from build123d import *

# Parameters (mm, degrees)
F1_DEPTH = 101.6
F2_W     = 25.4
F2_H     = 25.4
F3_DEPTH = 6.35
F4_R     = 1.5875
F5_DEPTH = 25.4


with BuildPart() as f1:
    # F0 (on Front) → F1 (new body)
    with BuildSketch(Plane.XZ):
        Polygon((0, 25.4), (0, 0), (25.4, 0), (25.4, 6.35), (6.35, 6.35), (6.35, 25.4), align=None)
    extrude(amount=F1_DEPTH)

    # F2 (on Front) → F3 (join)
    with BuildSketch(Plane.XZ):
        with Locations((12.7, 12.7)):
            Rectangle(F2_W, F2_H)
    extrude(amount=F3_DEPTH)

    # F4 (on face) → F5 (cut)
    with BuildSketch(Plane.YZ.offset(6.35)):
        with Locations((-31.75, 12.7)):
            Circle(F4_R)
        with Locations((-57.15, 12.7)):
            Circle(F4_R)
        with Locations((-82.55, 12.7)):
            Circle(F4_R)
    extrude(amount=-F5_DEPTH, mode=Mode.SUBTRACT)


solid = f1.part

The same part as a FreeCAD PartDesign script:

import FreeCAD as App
import Part
import Sketcher
Q = App.Units.Quantity


def add_polygon(sketch, points):
    """Adds a closed chain of lines whose ends are joined by coincident constraints."""
    first, n = sketch.GeometryCount, len(points)
    for a, b in zip(points, points[1:] + points[:1]):
        sketch.addGeometry(Part.LineSegment(App.Vector(*a, 0), App.Vector(*b, 0)), False)
    for i in range(n):
        sketch.addConstraint(Sketcher.Constraint("Coincident", first + i, 2, first + (i + 1) % n, 1))

doc = App.newDocument("Part")
body = doc.addObject("PartDesign::Body", "Body")

# Sketch on XZ plane
sketch1 = body.newObject("Sketcher::SketchObject", "Sketch")
sketch1.AttachmentSupport = (doc.getObject("XZ_Plane"), [""])
sketch1.MapMode = "FlatFace"
add_polygon(sketch1, [(0, 25.4), (0, 0), (25.4, 0), (25.4, 6.35), (6.35, 6.35), (6.35, 25.4)])  # lines 0-5
sketch1.addConstraint([
    Sketcher.Constraint("Vertical", 0),
    Sketcher.Constraint("Horizontal", 1),
    Sketcher.Constraint("Vertical", 2),
    Sketcher.Constraint("Horizontal", 3),
    Sketcher.Constraint("Vertical", 4),
    Sketcher.Constraint("Horizontal", 5),
    Sketcher.Constraint("Coincident", 0, 2, -1, 1),
    Sketcher.Constraint("Equal", 1, 0),
    Sketcher.Constraint("Equal", 5, 2),
    Sketcher.Constraint("DistanceX", 1, 1, 1, 2, Q("1 in")),
    Sketcher.Constraint("DistanceX", 3, 2, 3, 1, Q("0.75 in")),
])
pad1 = body.newObject("PartDesign::Pad", "Pad")
pad1.Profile = sketch1
pad1.Length = Q("4 in")

# Sketch on XZ plane
sketch2 = body.newObject("Sketcher::SketchObject", "Sketch001")
sketch2.AttachmentSupport = (doc.getObject("XZ_Plane"), [""])
sketch2.MapMode = "FlatFace"
add_polygon(sketch2, [(0, 25.4), (0, 0), (25.4, 0), (25.4, 25.4)])  # lines 0-3
sketch2.addConstraint([
    Sketcher.Constraint("Vertical", 0),
    Sketcher.Constraint("Horizontal", 1),
    Sketcher.Constraint("Vertical", 2),
    Sketcher.Constraint("Horizontal", 3),
    Sketcher.Constraint("Coincident", 0, 2, -1, 1),
    Sketcher.Constraint("Equal", 3, 0),
    Sketcher.Constraint("DistanceX", 1, 1, 1, 2, Q("1 in")),
])
pad2 = body.newObject("PartDesign::Pad", "Pad001")
pad2.Profile = sketch2
pad2.Length = Q("0.25 in")

# Sketch on YZ plane
sketch3 = body.newObject("Sketcher::SketchObject", "Sketch002")
sketch3.AttachmentSupport = (doc.getObject("YZ_Plane"), [""])
sketch3.MapMode = "FlatFace"
sketch3.AttachmentOffset = App.Placement(App.Vector(0, 0, 0.25 * 25.4), App.Rotation())
sketch3.addGeometry([
    Part.Circle(App.Vector(-31.75, 12.7, 0), App.Vector(0, 0, 1), 1.5875),
    Part.Circle(App.Vector(-57.15, 12.7, 0), App.Vector(0, 0, 1), 1.5875),
    Part.Circle(App.Vector(-82.55, 12.7, 0), App.Vector(0, 0, 1), 1.5875),
], False)
sketch3.addConstraint([
    Sketcher.Constraint("Equal", 0, 1),
    Sketcher.Constraint("Equal", 1, 2),
    Sketcher.Constraint("Horizontal", 0, 3, 1, 3),
    Sketcher.Constraint("Horizontal", 1, 3, 2, 3),
    Sketcher.Constraint("Diameter", 0, Q("0.125 in")),
    Sketcher.Constraint("DistanceX", 1, 3, 0, 3, Q("1 in")),
    Sketcher.Constraint("DistanceX", 2, 3, 1, 3, Q("1 in")),
    Sketcher.Constraint("DistanceY", -1, 1, 0, 3, Q("0.5 in")),
    Sketcher.Constraint("DistanceX", 0, 3, -1, 1, Q("1.25 in")),
])
pocket1 = body.newObject("PartDesign::Pocket", "Pocket")
pocket1.Profile = sketch3
pocket1.Length = Q("1 in")

doc.recompute()
